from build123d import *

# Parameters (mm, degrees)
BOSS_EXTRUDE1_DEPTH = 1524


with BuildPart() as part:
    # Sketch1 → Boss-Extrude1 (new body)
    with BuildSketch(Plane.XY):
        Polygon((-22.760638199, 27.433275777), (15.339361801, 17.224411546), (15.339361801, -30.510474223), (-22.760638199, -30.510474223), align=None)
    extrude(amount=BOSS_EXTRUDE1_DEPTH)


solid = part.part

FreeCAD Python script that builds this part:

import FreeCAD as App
import Part
import Sketcher
Q = App.Units.Quantity

doc = App.newDocument("Part")
params = doc.addObject("Spreadsheet::Sheet", "Params")
for row, (alias, value) in enumerate([
    ("sketch1_width", "1.5 in"),
    ("sketch1_height", "2.28125 in"),
    ("pad1_length", "60 in"),
], start=1):
    params.set(f"A{row}", alias)
    params.set(f"B{row}", "=" + value)
    params.setAlias(f"B{row}", alias)

body = doc.addObject("PartDesign::Body", "Body")

# Sketch on XY plane
sketch1 = doc.addObject("Sketcher::SketchObject", "Sketch")
body.addObject(sketch1)
sketch1.AttachmentSupport = (doc.XY_Plane, [""])
sketch1.MapMode = "FlatFace"
sketch1.addGeometry([
    Part.LineSegment(App.Vector(15, 17, 0), App.Vector(-23, 27, 0)),
    Part.LineSegment(App.Vector(-23, 27, 0), App.Vector(-23, -31, 0)),
    Part.LineSegment(App.Vector(-23, -31, 0), App.Vector(15, -31, 0)),
    Part.LineSegment(App.Vector(15, -31, 0), App.Vector(15, 17, 0)),
], False)
sketch1.addConstraint([
    Sketcher.Constraint("Coincident", 0, 2, 1, 1),
    Sketcher.Constraint("Coincident", 1, 2, 2, 1),
    Sketcher.Constraint("Coincident", 2, 2, 3, 1),
    Sketcher.Constraint("Coincident", 3, 2, 0, 1),
    Sketcher.Constraint("Vertical", 1),
    Sketcher.Constraint("Horizontal", 2),
    Sketcher.Constraint("Vertical", 3),
    Sketcher.Constraint("DistanceX", 2, 1, 2, 2, Q("1.5 in")),
    Sketcher.Constraint("Angle", 0, Q("165 deg")),
    Sketcher.Constraint("DistanceY", 1, 2, 1, 1, Q("2.28125 in")),
    Sketcher.Constraint("DistanceX", 0, 2, -1, 1, Q("22.760638 mm")),
    Sketcher.Constraint("DistanceY", -1, 1, 3, 2, Q("17.224412 mm")),
])
sketch1.setExpression("Constraints[7]", "Params.sketch1_width")
sketch1.setExpression("Constraints[9]", "Params.sketch1_height")
pad1 = doc.addObject("PartDesign::Pad", "Pad")
body.addObject(pad1)
pad1.Profile = sketch1
pad1.setExpression("Length", "Params.pad1_length")

doc.recompute()
